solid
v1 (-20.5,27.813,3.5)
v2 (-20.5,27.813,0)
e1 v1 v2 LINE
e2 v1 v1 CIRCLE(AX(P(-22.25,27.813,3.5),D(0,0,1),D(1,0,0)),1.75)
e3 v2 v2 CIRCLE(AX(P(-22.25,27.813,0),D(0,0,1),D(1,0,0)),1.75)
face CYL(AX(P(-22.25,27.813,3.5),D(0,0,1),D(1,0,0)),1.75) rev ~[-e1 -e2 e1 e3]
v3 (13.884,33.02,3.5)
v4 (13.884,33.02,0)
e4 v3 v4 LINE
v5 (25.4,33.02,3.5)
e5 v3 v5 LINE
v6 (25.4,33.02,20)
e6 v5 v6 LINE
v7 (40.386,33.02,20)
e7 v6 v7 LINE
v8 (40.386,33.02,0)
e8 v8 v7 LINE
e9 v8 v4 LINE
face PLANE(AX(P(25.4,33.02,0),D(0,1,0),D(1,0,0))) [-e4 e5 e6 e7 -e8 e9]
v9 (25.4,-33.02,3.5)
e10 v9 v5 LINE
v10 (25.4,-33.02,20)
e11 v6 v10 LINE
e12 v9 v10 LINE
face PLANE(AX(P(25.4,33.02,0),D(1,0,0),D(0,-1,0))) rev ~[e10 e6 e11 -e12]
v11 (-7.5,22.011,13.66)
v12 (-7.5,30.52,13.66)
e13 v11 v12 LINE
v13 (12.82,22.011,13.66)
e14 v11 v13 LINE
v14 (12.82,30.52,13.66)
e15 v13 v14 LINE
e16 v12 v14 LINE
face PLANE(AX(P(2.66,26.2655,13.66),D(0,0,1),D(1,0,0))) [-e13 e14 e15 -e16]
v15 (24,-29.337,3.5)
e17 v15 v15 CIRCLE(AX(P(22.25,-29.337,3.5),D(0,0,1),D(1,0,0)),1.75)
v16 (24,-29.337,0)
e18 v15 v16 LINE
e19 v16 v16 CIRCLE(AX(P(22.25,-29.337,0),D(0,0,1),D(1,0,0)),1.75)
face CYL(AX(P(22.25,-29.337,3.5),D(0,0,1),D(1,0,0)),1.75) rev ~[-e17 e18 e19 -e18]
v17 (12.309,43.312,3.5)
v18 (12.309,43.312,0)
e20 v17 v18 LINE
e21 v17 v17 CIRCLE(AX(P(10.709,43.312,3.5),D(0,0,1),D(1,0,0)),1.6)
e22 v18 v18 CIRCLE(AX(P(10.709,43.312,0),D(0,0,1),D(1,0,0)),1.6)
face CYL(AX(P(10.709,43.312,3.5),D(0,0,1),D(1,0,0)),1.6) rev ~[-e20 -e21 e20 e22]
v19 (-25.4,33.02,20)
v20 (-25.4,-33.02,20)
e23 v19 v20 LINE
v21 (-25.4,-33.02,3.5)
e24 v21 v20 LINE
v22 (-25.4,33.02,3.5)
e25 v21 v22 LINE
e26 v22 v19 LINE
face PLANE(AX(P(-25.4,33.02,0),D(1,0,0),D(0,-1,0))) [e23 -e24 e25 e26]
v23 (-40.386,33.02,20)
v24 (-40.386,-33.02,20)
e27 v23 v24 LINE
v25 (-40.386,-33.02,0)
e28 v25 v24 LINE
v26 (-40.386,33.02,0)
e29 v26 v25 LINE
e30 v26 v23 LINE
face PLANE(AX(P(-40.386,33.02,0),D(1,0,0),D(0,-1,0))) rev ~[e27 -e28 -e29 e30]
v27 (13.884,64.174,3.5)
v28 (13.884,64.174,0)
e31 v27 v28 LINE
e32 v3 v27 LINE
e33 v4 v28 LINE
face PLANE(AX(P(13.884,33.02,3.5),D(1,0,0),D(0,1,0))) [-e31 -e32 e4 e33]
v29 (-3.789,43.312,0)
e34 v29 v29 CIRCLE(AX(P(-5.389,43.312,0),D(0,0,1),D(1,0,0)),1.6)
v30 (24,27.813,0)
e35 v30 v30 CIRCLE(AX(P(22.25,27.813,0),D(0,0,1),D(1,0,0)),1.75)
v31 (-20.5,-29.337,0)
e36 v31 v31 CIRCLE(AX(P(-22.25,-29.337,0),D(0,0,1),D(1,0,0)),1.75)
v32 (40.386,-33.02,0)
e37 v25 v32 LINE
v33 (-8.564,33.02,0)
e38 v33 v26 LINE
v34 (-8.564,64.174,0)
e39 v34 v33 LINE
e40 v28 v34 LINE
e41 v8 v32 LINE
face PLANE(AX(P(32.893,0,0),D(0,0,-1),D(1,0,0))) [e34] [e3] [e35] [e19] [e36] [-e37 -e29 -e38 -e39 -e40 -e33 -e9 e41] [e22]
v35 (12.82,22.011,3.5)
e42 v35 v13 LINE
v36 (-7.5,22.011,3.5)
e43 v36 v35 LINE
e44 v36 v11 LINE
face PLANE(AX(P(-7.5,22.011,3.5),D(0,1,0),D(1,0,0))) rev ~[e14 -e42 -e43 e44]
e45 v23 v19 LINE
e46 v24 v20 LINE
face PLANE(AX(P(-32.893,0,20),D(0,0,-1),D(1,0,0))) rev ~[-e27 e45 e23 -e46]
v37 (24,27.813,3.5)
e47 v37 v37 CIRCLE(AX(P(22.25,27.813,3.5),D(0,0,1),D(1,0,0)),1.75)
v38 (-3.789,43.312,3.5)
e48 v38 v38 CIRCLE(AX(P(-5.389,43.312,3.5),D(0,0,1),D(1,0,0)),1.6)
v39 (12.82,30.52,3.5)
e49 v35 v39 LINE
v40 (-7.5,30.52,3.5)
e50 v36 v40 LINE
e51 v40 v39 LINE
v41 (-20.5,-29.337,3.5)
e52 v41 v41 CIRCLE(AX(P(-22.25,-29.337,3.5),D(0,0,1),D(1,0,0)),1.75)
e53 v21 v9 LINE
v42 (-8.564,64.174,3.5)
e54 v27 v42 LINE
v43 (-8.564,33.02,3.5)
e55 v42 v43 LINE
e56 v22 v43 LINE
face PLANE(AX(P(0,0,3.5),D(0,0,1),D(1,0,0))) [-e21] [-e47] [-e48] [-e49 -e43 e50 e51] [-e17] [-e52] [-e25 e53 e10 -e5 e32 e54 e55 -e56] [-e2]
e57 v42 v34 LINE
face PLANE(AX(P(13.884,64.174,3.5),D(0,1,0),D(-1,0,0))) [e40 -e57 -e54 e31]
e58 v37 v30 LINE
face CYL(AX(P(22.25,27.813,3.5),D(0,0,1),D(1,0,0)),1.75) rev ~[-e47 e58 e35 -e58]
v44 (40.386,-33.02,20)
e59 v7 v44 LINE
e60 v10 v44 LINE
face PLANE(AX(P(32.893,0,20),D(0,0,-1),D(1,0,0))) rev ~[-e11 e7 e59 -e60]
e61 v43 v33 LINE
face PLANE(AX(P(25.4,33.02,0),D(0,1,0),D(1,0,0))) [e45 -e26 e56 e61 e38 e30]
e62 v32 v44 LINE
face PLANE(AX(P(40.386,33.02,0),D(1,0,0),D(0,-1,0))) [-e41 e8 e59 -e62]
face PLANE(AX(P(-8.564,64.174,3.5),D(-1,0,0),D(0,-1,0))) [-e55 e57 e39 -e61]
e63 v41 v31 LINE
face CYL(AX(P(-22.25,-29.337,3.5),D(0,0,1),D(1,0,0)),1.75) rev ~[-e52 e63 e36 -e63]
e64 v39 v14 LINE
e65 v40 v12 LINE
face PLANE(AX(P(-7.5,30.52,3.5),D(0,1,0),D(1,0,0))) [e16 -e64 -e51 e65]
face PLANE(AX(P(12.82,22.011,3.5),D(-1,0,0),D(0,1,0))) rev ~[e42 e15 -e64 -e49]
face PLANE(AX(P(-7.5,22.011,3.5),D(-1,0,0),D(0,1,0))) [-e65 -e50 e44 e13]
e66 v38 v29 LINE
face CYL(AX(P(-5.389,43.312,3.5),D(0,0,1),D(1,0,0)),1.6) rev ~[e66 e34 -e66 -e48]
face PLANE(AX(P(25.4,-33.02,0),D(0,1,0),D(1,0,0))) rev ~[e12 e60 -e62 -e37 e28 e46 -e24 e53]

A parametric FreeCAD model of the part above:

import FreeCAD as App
import Part
import Sketcher
Q = App.Units.Quantity


def add_polygon(sketch, points):
    """Adds a closed chain of lines whose ends are joined by coincident constraints."""
    first, n = sketch.GeometryCount, len(points)
    for a, b in zip(points, points[1:] + points[:1]):
        sketch.addGeometry(Part.LineSegment(App.Vector(*a, 0), App.Vector(*b, 0)), False)
    for i in range(n):
        sketch.addConstraint(Sketcher.Constraint("Coincident", first + i, 2, first + (i + 1) % n, 1))

doc = App.newDocument("Part")
body = doc.addObject("PartDesign::Body", "Body")

# Sketch on XY plane
sketch1 = doc.addObject("Sketcher::SketchObject", "Sketch")
body.addObject(sketch1)
sketch1.AttachmentSupport = (doc.XY_Plane, [""])
sketch1.MapMode = "FlatFace"
add_polygon(sketch1, [(-25, 33), (-25, -33), (25, -33), (25, 33)])  # lines 0-3
sketch1.addConstraint(Sketcher.Constraint("Vertical", 0))
sketch1.addConstraint(Sketcher.Constraint("Horizontal", 1))
sketch1.addConstraint(Sketcher.Constraint("Vertical", 2))
sketch1.addConstraint(Sketcher.Constraint("Horizontal", 3))
sketch1.addConstraint(Sketcher.Constraint("Symmetric", 0, 2, 2, 2, -1, 1))
sketch1.addConstraint(Sketcher.Constraint("DistanceX", 1, 1, 1, 2, Q("2 in")))
sketch1.addConstraint(Sketcher.Constraint("DistanceY", 0, 2, 0, 1, Q("2.6 in")))
pad1 = doc.addObject("PartDesign::Pad", "Pad")
body.addObject(pad1)
pad1.Profile = sketch1
pad1.Length = 3.5

# Sketch on XY plane
sketch2 = doc.addObject("Sketcher::SketchObject", "Sketch001")
body.addObject(sketch2)
sketch2.AttachmentSupport = (doc.XY_Plane, [""])
sketch2.MapMode = "FlatFace"
sketch2.AttachmentOffset = App.Placement(App.Vector(0, 0, 3.5), App.Rotation())
sketch2.addGeometry(Part.Circle(App.Vector(-22.2, 27.8, 0), App.Vector(0, 0, 1), 1.8), False)
sketch2.addGeometry(Part.Circle(App.Vector(-22.2, -29.3, 0), App.Vector(0, 0, 1), 1.8), False)
sketch2.addGeometry(Part.Circle(App.Vector(22.2, 27.8, 0), App.Vector(0, 0, 1), 1.8), False)
sketch2.addGeometry(Part.Circle(App.Vector(22.2, -29.3, 0), App.Vector(0, 0, 1), 1.8), False)
sketch2.addConstraint(Sketcher.Constraint("Equal", 0, 1))
sketch2.addConstraint(Sketcher.Constraint("Equal", 1, 2))
sketch2.addConstraint(Sketcher.Constraint("Equal", 2, 3))
sketch2.addConstraint(Sketcher.Constraint("Symmetric", 0, 3, 2, 3, -2))
sketch2.addConstraint(Sketcher.Constraint("Symmetric", 1, 3, 3, 3, -2))
sketch2.addConstraint(Sketcher.Constraint("Vertical", 0, 3, 1, 3))
sketch2.addConstraint(Sketcher.Constraint("Diameter", 0, 3.5))
sketch2.addConstraint(Sketcher.Constraint("DistanceY", 1, 3, 0, 3, Q("2.25 in")))
sketch2.addConstraint(Sketcher.Constraint("DistanceY", -1, 1, 0, 3, Q("1.095 in")))
sketch2.addConstraint(Sketcher.Constraint("DistanceX", 0, 3, -1, 1, 22.25))
pocket1 = doc.addObject("PartDesign::Pocket", "Pocket")
body.addObject(pocket1)
pocket1.Profile = sketch2
pocket1.Length = 25

# Sketch on XY plane
sketch3 = doc.addObject("Sketcher::SketchObject", "Sketch002")
body.addObject(sketch3)
sketch3.AttachmentSupport = (doc.XY_Plane, [""])
sketch3.MapMode = "FlatFace"
sketch3.AttachmentOffset = App.Placement(App.Vector(0, 0, 3.5), App.Rotation())
add_polygon(sketch3, [(-8, 31), (-8, 22), (13, 22), (13, 31)])  # lines 0-3
sketch3.addConstraint(Sketcher.Constraint("Vertical", 0))
sketch3.addConstraint(Sketcher.Constraint("Horizontal", 1))
sketch3.addConstraint(Sketcher.Constraint("Vertical", 2))
sketch3.addConstraint(Sketcher.Constraint("Horizontal", 3))
sketch3.addConstraint(Sketcher.Constraint("DistanceX", 1, 1, 1, 2, Q("0.8 in")))
sketch3.addConstraint(Sketcher.Constraint("DistanceY", 0, 2, 0, 1, Q("0.335 in")))
sketch3.addConstraint(Sketcher.Constraint("DistanceX", 0, 2, -1, 1, 7.5))
sketch3.addConstraint(Sketcher.Constraint("DistanceY", -1, 1, 0, 2, 22.011))
pad2 = doc.addObject("PartDesign::Pad", "Pad001")
body.addObject(pad2)
pad2.Profile = sketch3
pad2.Length = Q("0.4 in")

# Sketch on XY plane
sketch4 = doc.addObject("Sketcher::SketchObject", "Sketch003")
body.addObject(sketch4)
sketch4.AttachmentSupport = (doc.XY_Plane, [""])
sketch4.MapMode = "FlatFace"
add_polygon(sketch4, [(25, -33), (25, 33), (40, 33), (40, -33)])  # lines 0-3
add_polygon(sketch4, [(-40, -33), (-40, 33), (-25, 33), (-25, -33)])  # lines 4-7
sketch4.addConstraint(Sketcher.Constraint("Vertical", 0))
sketch4.addConstraint(Sketcher.Constraint("Horizontal", 1))
sketch4.addConstraint(Sketcher.Constraint("Vertical", 2))
sketch4.addConstraint(Sketcher.Constraint("Horizontal", 3))
sketch4.addConstraint(Sketcher.Constraint("Vertical", 4))
sketch4.addConstraint(Sketcher.Constraint("Horizontal", 5))
sketch4.addConstraint(Sketcher.Constraint("Vertical", 6))
sketch4.addConstraint(Sketcher.Constraint("Horizontal", 7))
sketch4.addConstraint(Sketcher.Constraint("Symmetric", 2, 2, 4, 2, -1, 1))
sketch4.addConstraint(Sketcher.Constraint("Symmetric", 0, 2, 6, 2, -1, 1))
sketch4.addConstraint(Sketcher.Constraint("Horizontal", 1, 2, 4, 2))
sketch4.addConstraint(Sketcher.Constraint("DistanceY", 0, 1, 0, 2, Q("2.6 in")))
sketch4.addConstraint(Sketcher.Constraint("DistanceX", -1, 1, 0, 2, Q("1 in")))
sketch4.addConstraint(Sketcher.Constraint("DistanceX", 1, 1, 1, 2, Q("0.59 in")))
pad3 = doc.addObject("PartDesign::Pad", "Pad002")
body.addObject(pad3)
pad3.Profile = sketch4
pad3.Length = 20

# Sketch on XY plane
sketch5 = doc.addObject("Sketcher::SketchObject", "Sketch004")
body.addObject(sketch5)
sketch5.AttachmentSupport = (doc.XY_Plane, [""])
sketch5.MapMode = "FlatFace"
sketch5.AttachmentOffset = App.Placement(App.Vector(0, 0, 3.5), App.Rotation())
add_polygon(sketch5, [(14, 64), (-9, 64), (-9, 33), (14, 33)])  # lines 0-3
sketch5.addConstraint(Sketcher.Constraint("Horizontal", 0))
sketch5.addConstraint(Sketcher.Constraint("Vertical", 1))
sketch5.addConstraint(Sketcher.Constraint("Horizontal", 2))
sketch5.addConstraint(Sketcher.Constraint("Vertical", 3))
sketch5.addConstraint(Sketcher.Constraint("DistanceY", -1, 1, 1, 2, Q("1.3 in")))
sketch5.addConstraint(Sketcher.Constraint("DistanceX", 0, 2, 0, 1, 22.448))
sketch5.addConstraint(Sketcher.Constraint("DistanceY", 1, 2, 1, 1, 31.154))
sketch5.addConstraint(Sketcher.Constraint("DistanceX", 0, 2, -1, 1, 8.564))
pad4 = doc.addObject("PartDesign::Pad", "Pad003")
body.addObject(pad4)
pad4.Profile = sketch5
pad4.Length = 3.5
pad4.Reversed = True

# Sketch on XY plane
sketch6 = doc.addObject("Sketcher::SketchObject", "Sketch005")
body.addObject(sketch6)
sketch6.AttachmentSupport = (doc.XY_Plane, [""])
sketch6.MapMode = "FlatFace"
sketch6.AttachmentOffset = App.Placement(App.Vector(0, 0, 3.5), App.Rotation())
sketch6.addGeometry(Part.Circle(App.Vector(-5.4, 43.3, 0), App.Vector(0, 0, 1), 1.6), False)
sketch6.addGeometry(Part.Circle(App.Vector(10.7, 43.3, 0), App.Vector(0, 0, 1), 1.6), False)
sketch6.addConstraint(Sketcher.Constraint("Equal", 0, 1))
sketch6.addConstraint(Sketcher.Constraint("Horizontal", 0, 3, 1, 3))
sketch6.addConstraint(Sketcher.Constraint("Diameter", 0, 3.2))
sketch6.addConstraint(Sketcher.Constraint("DistanceX", 0, 3, -1, 1, 5.389))
sketch6.addConstraint(Sketcher.Constraint("DistanceY", -1, 1, 0, 3, 43.312))
sketch6.addConstraint(Sketcher.Constraint("DistanceX", -1, 1, 1, 3, 10.709))
pocket2 = doc.addObject("PartDesign::Pocket", "Pocket001")
body.addObject(pocket2)
pocket2.Profile = sketch6
pocket2.Type = "ThroughAll"

doc.recompute()
